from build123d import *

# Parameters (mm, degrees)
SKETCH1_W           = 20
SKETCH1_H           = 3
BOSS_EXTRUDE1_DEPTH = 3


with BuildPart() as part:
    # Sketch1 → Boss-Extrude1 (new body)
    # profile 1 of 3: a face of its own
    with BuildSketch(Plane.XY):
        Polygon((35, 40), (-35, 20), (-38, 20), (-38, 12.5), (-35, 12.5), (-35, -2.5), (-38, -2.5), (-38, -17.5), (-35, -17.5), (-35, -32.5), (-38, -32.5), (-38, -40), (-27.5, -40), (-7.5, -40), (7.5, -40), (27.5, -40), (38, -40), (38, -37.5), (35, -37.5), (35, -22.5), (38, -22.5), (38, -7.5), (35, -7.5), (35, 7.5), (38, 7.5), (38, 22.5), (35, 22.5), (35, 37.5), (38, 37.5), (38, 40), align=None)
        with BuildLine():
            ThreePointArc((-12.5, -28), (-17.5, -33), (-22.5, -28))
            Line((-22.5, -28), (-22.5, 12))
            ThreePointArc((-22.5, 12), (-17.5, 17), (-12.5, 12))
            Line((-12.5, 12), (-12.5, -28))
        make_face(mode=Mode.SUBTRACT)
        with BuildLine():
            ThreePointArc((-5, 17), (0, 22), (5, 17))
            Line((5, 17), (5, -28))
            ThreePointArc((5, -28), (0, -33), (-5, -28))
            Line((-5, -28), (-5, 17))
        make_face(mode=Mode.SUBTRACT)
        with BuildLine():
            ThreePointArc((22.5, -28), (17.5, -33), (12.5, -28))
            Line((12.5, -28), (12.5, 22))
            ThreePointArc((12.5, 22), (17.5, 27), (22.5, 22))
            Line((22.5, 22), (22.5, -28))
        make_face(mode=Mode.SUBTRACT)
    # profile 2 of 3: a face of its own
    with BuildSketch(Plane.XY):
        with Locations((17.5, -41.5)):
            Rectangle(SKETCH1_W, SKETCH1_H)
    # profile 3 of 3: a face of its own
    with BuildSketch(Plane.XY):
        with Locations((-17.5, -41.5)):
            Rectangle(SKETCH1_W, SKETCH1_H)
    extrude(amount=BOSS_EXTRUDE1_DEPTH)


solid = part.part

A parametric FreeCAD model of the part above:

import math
import FreeCAD as App
import Part
import Sketcher

V = App.Vector

doc = App.newDocument("Part")
body = doc.addObject("PartDesign::Body", "Body")

sketch1 = body.newObject("Sketcher::SketchObject", "Sketch")
sketch1.AttachmentSupport = (doc.getObject("XY_Plane"), [""])
sketch1.MapMode = "FlatFace"
sketch1.addGeometry(Part.LineSegment(V(35, 40, 0), V(-35, 20, 0)), False)
sketch1.addGeometry(Part.LineSegment(V(-35, 20, 0), V(-38, 20, 0)), False)
sketch1.addGeometry(Part.LineSegment(V(-38, 20, 0), V(-38, 12.5, 0)), False)
sketch1.addGeometry(Part.LineSegment(V(-38, 12.5, 0), V(-35, 12.5, 0)), False)
sketch1.addGeometry(Part.LineSegment(V(-35, 12.5, 0), V(-35, -2.5, 0)), False)
sketch1.addGeometry(Part.LineSegment(V(-35, -2.5, 0), V(-38, -2.5, 0)), False)
sketch1.addGeometry(Part.LineSegment(V(-38, -2.5, 0), V(-38, -17.5, 0)), False)
sketch1.addGeometry(Part.LineSegment(V(-38, -17.5, 0), V(-35, -17.5, 0)), False)
sketch1.addGeometry(Part.LineSegment(V(-35, -17.5, 0), V(-35, -32.5, 0)), False)
sketch1.addGeometry(Part.LineSegment(V(-35, -32.5, 0), V(-38, -32.5, 0)), False)
sketch1.addGeometry(Part.LineSegment(V(-38, -32.5, 0), V(-38, -40, 0)), False)
sketch1.addGeometry(Part.LineSegment(V(-38, -40, 0), V(-27.5, -40, 0)), False)
sketch1.addGeometry(Part.LineSegment(V(-27.5, -40, 0), V(-27.5, -43, 0)), False)
sketch1.addGeometry(Part.LineSegment(V(-27.5, -43, 0), V(-7.5, -43, 0)), False)
sketch1.addGeometry(Part.LineSegment(V(-7.5, -43, 0), V(-7.5, -40, 0)), False)
sketch1.addGeometry(Part.LineSegment(V(-7.5, -40, 0), V(7.5, -40, 0)), False)
sketch1.addGeometry(Part.LineSegment(V(7.5, -40, 0), V(7.5, -43, 0)), False)
sketch1.addGeometry(Part.LineSegment(V(7.5, -43, 0), V(27.5, -43, 0)), False)
sketch1.addGeometry(Part.LineSegment(V(27.5, -43, 0), V(27.5, -40, 0)), False)
sketch1.addGeometry(Part.LineSegment(V(27.5, -40, 0), V(38, -40, 0)), False)
sketch1.addGeometry(Part.LineSegment(V(38, -40, 0), V(38, -37.5, 0)), False)
sketch1.addGeometry(Part.LineSegment(V(38, -37.5, 0), V(35, -37.5, 0)), False)
sketch1.addGeometry(Part.LineSegment(V(35, -37.5, 0), V(35, -22.5, 0)), False)
sketch1.addGeometry(Part.LineSegment(V(35, -22.5, 0), V(38, -22.5, 0)), False)
sketch1.addGeometry(Part.LineSegment(V(38, -22.5, 0), V(38, -7.5, 0)), False)
sketch1.addGeometry(Part.LineSegment(V(38, -7.5, 0), V(35, -7.5, 0)), False)
sketch1.addGeometry(Part.LineSegment(V(35, -7.5, 0), V(35, 7.5, 0)), False)
sketch1.addGeometry(Part.LineSegment(V(35, 7.5, 0), V(38, 7.5, 0)), False)
sketch1.addGeometry(Part.LineSegment(V(38, 7.5, 0), V(38, 22.5, 0)), False)
sketch1.addGeometry(Part.LineSegment(V(38, 22.5, 0), V(35, 22.5, 0)), False)
sketch1.addGeometry(Part.LineSegment(V(35, 22.5, 0), V(35, 37.5, 0)), False)
sketch1.addGeometry(Part.LineSegment(V(35, 37.5, 0), V(38, 37.5, 0)), False)
sketch1.addGeometry(Part.LineSegment(V(38, 37.5, 0), V(38, 40, 0)), False)
sketch1.addGeometry(Part.LineSegment(V(38, 40, 0), V(35, 40, 0)), False)
sketch1.addGeometry(Part.LineSegment(V(-12.5, 12, 0), V(-12.5, -28, 0)), False)
sketch1.addGeometry(Part.ArcOfCircle(Part.Circle(V(-17.5, -28, 0), V(0, 0, 1), 5), math.radians(180), math.radians(360)), False)
sketch1.addGeometry(Part.LineSegment(V(-22.5, -28, 0), V(-22.5, 12, 0)), False)
sketch1.addGeometry(Part.ArcOfCircle(Part.Circle(V(-17.5, 12, 0), V(0, 0, 1), 5), math.radians(0), math.radians(180)), False)
sketch1.addGeometry(Part.LineSegment(V(-5, -28, 0), V(-5, 17, 0)), False)
sketch1.addGeometry(Part.ArcOfCircle(Part.Circle(V(0, 17, 0), V(0, 0, 1), 5), math.radians(0), math.radians(180)), False)
sketch1.addGeometry(Part.LineSegment(V(5, 17, 0), V(5, -28, 0)), False)
sketch1.addGeometry(Part.ArcOfCircle(Part.Circle(V(0, -28, 0), V(0, 0, 1), 5), math.radians(180), math.radians(360)), False)
sketch1.addGeometry(Part.LineSegment(V(22.5, 22, 0), V(22.5, -28, 0)), False)
sketch1.addGeometry(Part.ArcOfCircle(Part.Circle(V(17.5, -28, 0), V(0, 0, 1), 5), math.radians(180), math.radians(360)), False)
sketch1.addGeometry(Part.LineSegment(V(12.5, -28, 0), V(12.5, 22, 0)), False)
sketch1.addGeometry(Part.ArcOfCircle(Part.Circle(V(17.5, 22, 0), V(0, 0, 1), 5), math.radians(0), math.radians(180)), False)
sketch1.addConstraint(Sketcher.Constraint("Coincident", 0, 2, 1, 1))
sketch1.addConstraint(Sketcher.Constraint("Coincident", 1, 2, 2, 1))
sketch1.addConstraint(Sketcher.Constraint("Coincident", 2, 2, 3, 1))
sketch1.addConstraint(Sketcher.Constraint("Coincident", 3, 2, 4, 1))
sketch1.addConstraint(Sketcher.Constraint("Coincident", 4, 2, 5, 1))
sketch1.addConstraint(Sketcher.Constraint("Coincident", 5, 2, 6, 1))
sketch1.addConstraint(Sketcher.Constraint("Coincident", 6, 2, 7, 1))
sketch1.addConstraint(Sketcher.Constraint("Coincident", 7, 2, 8, 1))
sketch1.addConstraint(Sketcher.Constraint("Coincident", 8, 2, 9, 1))
sketch1.addConstraint(Sketcher.Constraint("Coincident", 9, 2, 10, 1))
sketch1.addConstraint(Sketcher.Constraint("Coincident", 10, 2, 11, 1))
sketch1.addConstraint(Sketcher.Constraint("Coincident", 11, 2, 12, 1))
sketch1.addConstraint(Sketcher.Constraint("Coincident", 12, 2, 13, 1))
sketch1.addConstraint(Sketcher.Constraint("Coincident", 13, 2, 14, 1))
sketch1.addConstraint(Sketcher.Constraint("Coincident", 14, 2, 15, 1))
sketch1.addConstraint(Sketcher.Constraint("Coincident", 15, 2, 16, 1))
sketch1.addConstraint(Sketcher.Constraint("Coincident", 16, 2, 17, 1))
sketch1.addConstraint(Sketcher.Constraint("Coincident", 17, 2, 18, 1))
sketch1.addConstraint(Sketcher.Constraint("Coincident", 18, 2, 19, 1))
sketch1.addConstraint(Sketcher.Constraint("Coincident", 19, 2, 20, 1))
sketch1.addConstraint(Sketcher.Constraint("Coincident", 20, 2, 21, 1))
sketch1.addConstraint(Sketcher.Constraint("Coincident", 21, 2, 22, 1))
sketch1.addConstraint(Sketcher.Constraint("Coincident", 22, 2, 23, 1))
sketch1.addConstraint(Sketcher.Constraint("Coincident", 23, 2, 24, 1))
sketch1.addConstraint(Sketcher.Constraint("Coincident", 24, 2, 25, 1))
sketch1.addConstraint(Sketcher.Constraint("Coincident", 25, 2, 26, 1))
sketch1.addConstraint(Sketcher.Constraint("Coincident", 26, 2, 27, 1))
sketch1.addConstraint(Sketcher.Constraint("Coincident", 27, 2, 28, 1))
sketch1.addConstraint(Sketcher.Constraint("Coincident", 28, 2, 29, 1))
sketch1.addConstraint(Sketcher.Constraint("Coincident", 29, 2, 30, 1))
sketch1.addConstraint(Sketcher.Constraint("Coincident", 30, 2, 31, 1))
sketch1.addConstraint(Sketcher.Constraint("Coincident", 31, 2, 32, 1))
sketch1.addConstraint(Sketcher.Constraint("Coincident", 32, 2, 33, 1))
sketch1.addConstraint(Sketcher.Constraint("Coincident", 33, 2, 0, 1))
sketch1.addConstraint(Sketcher.Constraint("Tangent", 34, 2, 35, 2))
sketch1.addConstraint(Sketcher.Constraint("Tangent", 35, 1, 36, 1))
sketch1.addConstraint(Sketcher.Constraint("Tangent", 36, 2, 37, 2))
sketch1.addConstraint(Sketcher.Constraint("Tangent", 37, 1, 34, 1))
sketch1.addConstraint(Sketcher.Constraint("Tangent", 38, 2, 39, 2))
sketch1.addConstraint(Sketcher.Constraint("Tangent", 39, 1, 40, 1))
sketch1.addConstraint(Sketcher.Constraint("Tangent", 40, 2, 41, 2))
sketch1.addConstraint(Sketcher.Constraint("Tangent", 41, 1, 38, 1))
sketch1.addConstraint(Sketcher.Constraint("Tangent", 42, 2, 43, 2))
sketch1.addConstraint(Sketcher.Constraint("Tangent", 43, 1, 44, 1))
sketch1.addConstraint(Sketcher.Constraint("Tangent", 44, 2, 45, 2))
sketch1.addConstraint(Sketcher.Constraint("Tangent", 45, 1, 42, 1))
sketch1.addConstraint(Sketcher.Constraint("Horizontal", 1))
sketch1.addConstraint(Sketcher.Constraint("Vertical", 2))
sketch1.addConstraint(Sketcher.Constraint("Horizontal", 3))
sketch1.addConstraint(Sketcher.Constraint("Vertical", 4))
sketch1.addConstraint(Sketcher.Constraint("Horizontal", 5))
sketch1.addConstraint(Sketcher.Constraint("Vertical", 6))
sketch1.addConstraint(Sketcher.Constraint("Horizontal", 7))
sketch1.addConstraint(Sketcher.Constraint("Vertical", 8))
sketch1.addConstraint(Sketcher.Constraint("Horizontal", 9))
sketch1.addConstraint(Sketcher.Constraint("Vertical", 10))
sketch1.addConstraint(Sketcher.Constraint("Horizontal", 11))
sketch1.addConstraint(Sketcher.Constraint("Vertical", 12))
sketch1.addConstraint(Sketcher.Constraint("Horizontal", 13))
sketch1.addConstraint(Sketcher.Constraint("Vertical", 14))
sketch1.addConstraint(Sketcher.Constraint("Horizontal", 15))
sketch1.addConstraint(Sketcher.Constraint("Vertical", 16))
sketch1.addConstraint(Sketcher.Constraint("Horizontal", 17))
sketch1.addConstraint(Sketcher.Constraint("Vertical", 18))
sketch1.addConstraint(Sketcher.Constraint("Horizontal", 19))
sketch1.addConstraint(Sketcher.Constraint("Vertical", 20))
sketch1.addConstraint(Sketcher.Constraint("Horizontal", 21))
sketch1.addConstraint(Sketcher.Constraint("Vertical", 22))
sketch1.addConstraint(Sketcher.Constraint("Horizontal", 23))
sketch1.addConstraint(Sketcher.Constraint("Vertical", 24))
sketch1.addConstraint(Sketcher.Constraint("Horizontal", 25))
sketch1.addConstraint(Sketcher.Constraint("Vertical", 26))
sketch1.addConstraint(Sketcher.Constraint("Horizontal", 27))
sketch1.addConstraint(Sketcher.Constraint("Vertical", 28))
sketch1.addConstraint(Sketcher.Constraint("Horizontal", 29))
sketch1.addConstraint(Sketcher.Constraint("Vertical", 30))
sketch1.addConstraint(Sketcher.Constraint("Horizontal", 31))
sketch1.addConstraint(Sketcher.Constraint("Vertical", 32))
sketch1.addConstraint(Sketcher.Constraint("Horizontal", 33))
sketch1.addConstraint(Sketcher.Constraint("Vertical", 34))
sketch1.addConstraint(Sketcher.Constraint("Vertical", 36))
sketch1.addConstraint(Sketcher.Constraint("Vertical", 38))
sketch1.addConstraint(Sketcher.Constraint("Vertical", 40))
sketch1.addConstraint(Sketcher.Constraint("Vertical", 42))
sketch1.addConstraint(Sketcher.Constraint("Vertical", 44))
sketch1.addConstraint(Sketcher.Constraint("Equal", 37, 39))
sketch1.addConstraint(Sketcher.Constraint("Equal", 41, 43))
sketch1.addConstraint(Sketcher.Constraint("Symmetric", 10, 2, 32, 2, -1, 1))
sketch1.addConstraint(Sketcher.Constraint("Symmetric", 35, 3, 43, 3, -2))
sketch1.addConstraint(Sketcher.Constraint("Symmetric", 13, 2, 16, 2, -2))
sketch1.addConstraint(Sketcher.Constraint("Symmetric", 11, 2, 18, 2, -2))
sketch1.addConstraint(Sketcher.Constraint("Symmetric", 24, 2, 27, 2, -1))
sketch1.addConstraint(Sketcher.Constraint("Symmetric", 22, 2, 29, 2, -1))
sketch1.addConstraint(Sketcher.Constraint("Symmetric", 20, 2, 31, 2, -1))
sketch1.addConstraint(Sketcher.Constraint("PointOnObject", 39, 3, -2))
sketch1.addConstraint(Sketcher.Constraint("Horizontal", 35, 3, 41, 3))
sketch1.addConstraint(Sketcher.Constraint("Horizontal", 11, 2, 14, 2))
sketch1.addConstraint(Sketcher.Constraint("Vertical", 0, 2, 3, 2))
sketch1.addConstraint(Sketcher.Constraint("Vertical", 2, 2, 5, 2))
sketch1.addConstraint(Sketcher.Constraint("Vertical", 4, 2, 7, 2))
sketch1.addConstraint(Sketcher.Constraint("Vertical", 6, 2, 9, 2))
sketch1.addConstraint(Sketcher.Constraint("Vertical", 20, 2, 23, 2))
sketch1.addConstraint(Sketcher.Constraint("Vertical", 22, 2, 25, 2))
sketch1.addConstraint(Sketcher.Constraint("Vertical", 30, 2, 33, 2))
sketch1.addConstraint(Sketcher.Constraint("Equal", 9, 21))
sketch1.addConstraint(Sketcher.Constraint("Equal", 15, 4))
sketch1.addConstraint(Sketcher.Constraint("Equal", 4, 6))
sketch1.addConstraint(Sketcher.Constraint("Equal", 6, 8))
sketch1.addConstraint(Sketcher.Constraint("Equal", 2, 10))
sketch1.addConstraint(Sketcher.Constraint("Equal", 33, 12))
sketch1.addConstraint(Sketcher.Constraint("Equal", 8, 22))
sketch1.addConstraint(Sketcher.Constraint("Equal", 22, 24))
sketch1.addConstraint(Sketcher.Constraint("Equal", 24, 26))
sketch1.addConstraint(Sketcher.Constraint("Radius", 35, 5.0))
sketch1.addConstraint(Sketcher.Constraint("DistanceX", 1, 2, 1, 1, 3.0))
sketch1.addConstraint(Sketcher.Constraint("DistanceX", 13, 1, 13, 2, 20.0))
sketch1.addConstraint(Sketcher.Constraint("DistanceX", 15, 1, 15, 2, 15.0))
sketch1.addConstraint(Sketcher.Constraint("DistanceY", 34, 2, 34, 1, 40.0))
sketch1.addConstraint(Sketcher.Constraint("DistanceY", 38, 1, 38, 2, 45.0))
sketch1.addConstraint(Sketcher.Constraint("DistanceY", 42, 2, 42, 1, 50.0))
sketch1.addConstraint(Sketcher.Constraint("DistanceX", 11, 1, 11, 2, 10.5))
sketch1.addConstraint(Sketcher.Constraint("DistanceY", 2, 2, 2, 1, 7.5))
sketch1.addConstraint(Sketcher.Constraint("DistanceY", 20, 1, 20, 2, 2.5))
sketch1.addConstraint(Sketcher.Constraint("DistanceY", 35, 3, -1, 1, 28.0))
sketch1.addConstraint(Sketcher.Constraint("DistanceX", 35, 3, 43, 3, 35.0))
pad1 = body.newObject("PartDesign::Pad", "Pad")
pad1.Profile = sketch1
pad1.Length = 3

doc.recompute()
